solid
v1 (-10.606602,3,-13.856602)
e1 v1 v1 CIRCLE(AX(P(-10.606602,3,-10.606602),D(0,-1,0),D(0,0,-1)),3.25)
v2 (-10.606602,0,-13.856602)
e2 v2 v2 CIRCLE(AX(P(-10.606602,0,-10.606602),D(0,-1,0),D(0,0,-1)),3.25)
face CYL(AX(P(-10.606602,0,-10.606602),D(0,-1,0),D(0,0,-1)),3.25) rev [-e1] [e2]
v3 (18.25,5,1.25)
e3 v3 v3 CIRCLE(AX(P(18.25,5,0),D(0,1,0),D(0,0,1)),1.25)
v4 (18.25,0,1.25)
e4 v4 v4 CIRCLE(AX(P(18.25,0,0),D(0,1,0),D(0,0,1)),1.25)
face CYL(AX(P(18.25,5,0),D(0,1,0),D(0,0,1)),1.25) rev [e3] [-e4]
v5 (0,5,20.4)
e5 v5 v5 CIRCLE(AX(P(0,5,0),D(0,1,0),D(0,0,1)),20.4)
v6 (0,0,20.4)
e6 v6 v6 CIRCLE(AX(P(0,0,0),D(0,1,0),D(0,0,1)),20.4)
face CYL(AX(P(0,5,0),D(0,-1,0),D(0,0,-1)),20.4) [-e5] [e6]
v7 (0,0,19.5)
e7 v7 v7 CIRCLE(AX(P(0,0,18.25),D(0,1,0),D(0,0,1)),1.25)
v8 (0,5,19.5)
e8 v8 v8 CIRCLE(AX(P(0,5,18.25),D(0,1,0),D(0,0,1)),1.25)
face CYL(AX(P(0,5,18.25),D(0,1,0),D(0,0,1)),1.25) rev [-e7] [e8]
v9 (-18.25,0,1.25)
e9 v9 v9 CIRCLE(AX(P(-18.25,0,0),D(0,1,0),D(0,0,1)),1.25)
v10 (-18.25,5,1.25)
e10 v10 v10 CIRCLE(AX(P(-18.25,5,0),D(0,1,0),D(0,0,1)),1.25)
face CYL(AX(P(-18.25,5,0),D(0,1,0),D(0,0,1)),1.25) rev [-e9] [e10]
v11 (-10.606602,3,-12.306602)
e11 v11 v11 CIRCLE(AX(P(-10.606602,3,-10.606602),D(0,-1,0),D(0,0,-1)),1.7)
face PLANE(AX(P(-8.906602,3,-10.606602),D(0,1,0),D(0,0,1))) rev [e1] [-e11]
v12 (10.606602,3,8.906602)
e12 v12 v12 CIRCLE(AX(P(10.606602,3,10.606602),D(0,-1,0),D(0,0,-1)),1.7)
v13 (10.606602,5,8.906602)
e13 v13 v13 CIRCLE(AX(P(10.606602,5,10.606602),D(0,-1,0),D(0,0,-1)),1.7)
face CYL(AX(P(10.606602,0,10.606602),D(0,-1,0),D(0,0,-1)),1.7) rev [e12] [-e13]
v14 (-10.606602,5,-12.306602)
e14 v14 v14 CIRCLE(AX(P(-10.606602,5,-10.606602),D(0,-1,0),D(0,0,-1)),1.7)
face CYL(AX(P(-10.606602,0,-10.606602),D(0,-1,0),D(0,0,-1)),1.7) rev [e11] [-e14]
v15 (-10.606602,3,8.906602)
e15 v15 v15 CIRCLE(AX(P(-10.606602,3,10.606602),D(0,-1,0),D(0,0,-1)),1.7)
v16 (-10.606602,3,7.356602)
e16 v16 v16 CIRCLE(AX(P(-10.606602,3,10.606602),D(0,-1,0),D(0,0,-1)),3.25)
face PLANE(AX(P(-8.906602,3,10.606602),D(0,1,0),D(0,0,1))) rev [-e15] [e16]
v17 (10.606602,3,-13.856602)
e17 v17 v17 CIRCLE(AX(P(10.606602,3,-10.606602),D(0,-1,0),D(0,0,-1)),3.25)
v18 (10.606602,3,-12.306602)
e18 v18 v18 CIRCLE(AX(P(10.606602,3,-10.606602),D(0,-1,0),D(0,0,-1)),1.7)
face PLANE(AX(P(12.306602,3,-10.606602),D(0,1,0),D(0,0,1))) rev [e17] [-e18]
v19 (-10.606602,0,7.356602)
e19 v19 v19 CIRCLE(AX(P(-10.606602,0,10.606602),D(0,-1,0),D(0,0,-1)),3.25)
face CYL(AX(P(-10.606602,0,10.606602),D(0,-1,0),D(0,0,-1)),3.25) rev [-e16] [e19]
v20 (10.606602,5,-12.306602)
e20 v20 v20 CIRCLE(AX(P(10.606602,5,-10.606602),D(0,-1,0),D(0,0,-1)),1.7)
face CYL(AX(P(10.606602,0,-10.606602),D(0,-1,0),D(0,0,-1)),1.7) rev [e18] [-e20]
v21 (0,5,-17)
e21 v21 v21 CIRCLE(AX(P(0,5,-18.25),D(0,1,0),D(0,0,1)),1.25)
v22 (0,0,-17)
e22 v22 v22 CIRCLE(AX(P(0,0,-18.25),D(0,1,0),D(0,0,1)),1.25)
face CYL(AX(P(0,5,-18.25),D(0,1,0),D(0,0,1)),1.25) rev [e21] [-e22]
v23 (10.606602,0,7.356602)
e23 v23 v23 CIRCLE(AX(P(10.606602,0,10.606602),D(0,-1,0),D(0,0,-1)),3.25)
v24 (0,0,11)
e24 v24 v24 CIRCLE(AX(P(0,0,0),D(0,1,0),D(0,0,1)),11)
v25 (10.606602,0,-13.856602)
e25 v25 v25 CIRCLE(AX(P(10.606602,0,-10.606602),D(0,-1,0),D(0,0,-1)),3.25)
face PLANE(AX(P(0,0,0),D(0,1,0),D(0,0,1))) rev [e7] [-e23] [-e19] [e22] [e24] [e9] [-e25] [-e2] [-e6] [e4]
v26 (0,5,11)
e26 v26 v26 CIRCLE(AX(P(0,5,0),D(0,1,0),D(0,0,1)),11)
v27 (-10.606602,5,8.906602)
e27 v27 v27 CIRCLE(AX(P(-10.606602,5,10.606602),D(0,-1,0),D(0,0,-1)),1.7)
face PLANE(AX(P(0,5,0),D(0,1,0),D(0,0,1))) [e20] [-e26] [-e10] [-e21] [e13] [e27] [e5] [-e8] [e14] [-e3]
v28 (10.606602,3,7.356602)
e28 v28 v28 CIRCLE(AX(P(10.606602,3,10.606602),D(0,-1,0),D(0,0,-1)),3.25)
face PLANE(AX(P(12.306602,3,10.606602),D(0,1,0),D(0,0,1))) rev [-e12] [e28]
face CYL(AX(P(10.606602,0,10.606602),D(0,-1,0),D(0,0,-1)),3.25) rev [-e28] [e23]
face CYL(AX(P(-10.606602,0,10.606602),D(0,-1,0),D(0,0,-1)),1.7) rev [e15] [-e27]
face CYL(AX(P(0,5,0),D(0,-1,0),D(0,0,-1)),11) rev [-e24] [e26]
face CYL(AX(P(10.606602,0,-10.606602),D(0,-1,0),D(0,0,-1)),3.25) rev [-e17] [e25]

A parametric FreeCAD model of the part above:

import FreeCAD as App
import Part
import Sketcher
from FreeCAD import Vector

doc = App.newDocument("Part")
body = doc.addObject("PartDesign::Body", "Body")

# Sketch on XZ plane
sketch1 = doc.addObject("Sketcher::SketchObject", "Sketch")
body.addObject(sketch1)
sketch1.AttachmentSupport = (doc.XZ_Plane, [""])
sketch1.MapMode = "FlatFace"
sketch1.addGeometry(Part.Circle(Vector(0, 0, 0), Vector(0, 0, 1), 20.4), False)
sketch1.addGeometry(Part.Circle(Vector(0, 0, 0), Vector(0, 0, 1), 11), False)
sketch1.addConstraint(Sketcher.Constraint("Coincident", 0, 3, -1, 1))
sketch1.addConstraint(Sketcher.Constraint("Coincident", 1, 3, -1, 1))
sketch1.addConstraint(Sketcher.Constraint("Diameter", 1, 22.0))
sketch1.addConstraint(Sketcher.Constraint("Diameter", 0, 40.8))
pad1 = doc.addObject("PartDesign::Pad", "Pad")
body.addObject(pad1)
pad1.Profile = sketch1
pad1.Length = 5
pad1.Reversed = True

# Sketch on XZ plane
sketch2 = doc.addObject("Sketcher::SketchObject", "Sketch001")
body.addObject(sketch2)
sketch2.AttachmentSupport = (doc.XZ_Plane, [""])
sketch2.MapMode = "FlatFace"
sketch2.AttachmentOffset = App.Placement(Vector(0, 0, -5), App.Rotation())
sketch2.addGeometry(Part.Circle(Vector(-18.25, 0, 0), Vector(0, 0, 1), 1.25), False)
sketch2.addGeometry(Part.Circle(Vector(0, -18.25, 0), Vector(0, 0, 1), 1.25), False)
sketch2.addGeometry(Part.Circle(Vector(18.25, 0, 0), Vector(0, 0, 1), 1.25), False)
sketch2.addGeometry(Part.Circle(Vector(0, 18.25, 0), Vector(0, 0, 1), 1.25), False)
sketch2.addConstraint(Sketcher.Constraint("Equal", 0, 1))
sketch2.addConstraint(Sketcher.Constraint("Equal", 1, 2))
sketch2.addConstraint(Sketcher.Constraint("Equal", 2, 3))
sketch2.addConstraint(Sketcher.Constraint("Symmetric", 0, 3, 2, 3, -1, 1))
sketch2.addConstraint(Sketcher.Constraint("Symmetric", 1, 3, 3, 3, -1, 1))
sketch2.addConstraint(Sketcher.Constraint("PointOnObject", 0, 3, -1))
sketch2.addConstraint(Sketcher.Constraint("PointOnObject", 1, 3, -2))
sketch2.addConstraint(Sketcher.Constraint("Diameter", 0, 2.5))
sketch2.addConstraint(Sketcher.Constraint("DistanceX", 0, 3, 2, 3, 36.5))
sketch2.addConstraint(Sketcher.Constraint("DistanceY", 1, 3, 3, 3, 36.5))
doc.recompute()
hole = doc.addObject("PartDesign::Hole", "Hole")
body.addObject(hole)
hole.Profile = sketch2
hole.ThreadType = "None"
hole.Diameter = 2.5
hole.DepthType = "ThroughAll"
hole.Reversed = True

# Sketch on XZ plane
sketch3 = doc.addObject("Sketcher::SketchObject", "Sketch002")
body.addObject(sketch3)
sketch3.AttachmentSupport = (doc.XZ_Plane, [""])
sketch3.MapMode = "FlatFace"
sketch3.addGeometry(Part.Circle(Vector(-10.606602, 10.606602, 0), Vector(0, 0, 1), 1.7), False)
sketch3.addGeometry(Part.Circle(Vector(10.606602, 10.606602, 0), Vector(0, 0, 1), 1.7), False)
sketch3.addGeometry(Part.Circle(Vector(10.606602, -10.606602, 0), Vector(0, 0, 1), 1.7), False)
sketch3.addGeometry(Part.Circle(Vector(-10.606602, -10.606602, 0), Vector(0, 0, 1), 1.7), False)
sketch3.addConstraint(Sketcher.Constraint("Equal", 0, 1))
sketch3.addConstraint(Sketcher.Constraint("Equal", 1, 2))
sketch3.addConstraint(Sketcher.Constraint("Equal", 2, 3))
sketch3.addConstraint(Sketcher.Constraint("Symmetric", 0, 3, 2, 3, -1, 1))
sketch3.addConstraint(Sketcher.Constraint("Symmetric", 1, 3, 3, 3, -1, 1))
sketch3.addConstraint(Sketcher.Constraint("Symmetric", 0, 3, 1, 3, -2))
sketch3.addConstraint(Sketcher.Constraint("Diameter", 0, 3.4))
sketch3.addConstraint(Sketcher.Constraint("DistanceX", 0, 3, -1, 1, 10.606602))
sketch3.addConstraint(Sketcher.Constraint("DistanceY", -1, 1, 0, 3, 10.606602))
doc.recompute()
hole2 = doc.addObject("PartDesign::Hole", "Hole001")
body.addObject(hole2)
hole2.Profile = sketch3
hole2.ThreadType = "None"
hole2.Diameter = 3.4
hole2.DepthType = "ThroughAll"
hole2.HoleCutType = "Counterbore"
hole2.HoleCutDiameter = 6.5
hole2.HoleCutDepth = 3

doc.recompute()
